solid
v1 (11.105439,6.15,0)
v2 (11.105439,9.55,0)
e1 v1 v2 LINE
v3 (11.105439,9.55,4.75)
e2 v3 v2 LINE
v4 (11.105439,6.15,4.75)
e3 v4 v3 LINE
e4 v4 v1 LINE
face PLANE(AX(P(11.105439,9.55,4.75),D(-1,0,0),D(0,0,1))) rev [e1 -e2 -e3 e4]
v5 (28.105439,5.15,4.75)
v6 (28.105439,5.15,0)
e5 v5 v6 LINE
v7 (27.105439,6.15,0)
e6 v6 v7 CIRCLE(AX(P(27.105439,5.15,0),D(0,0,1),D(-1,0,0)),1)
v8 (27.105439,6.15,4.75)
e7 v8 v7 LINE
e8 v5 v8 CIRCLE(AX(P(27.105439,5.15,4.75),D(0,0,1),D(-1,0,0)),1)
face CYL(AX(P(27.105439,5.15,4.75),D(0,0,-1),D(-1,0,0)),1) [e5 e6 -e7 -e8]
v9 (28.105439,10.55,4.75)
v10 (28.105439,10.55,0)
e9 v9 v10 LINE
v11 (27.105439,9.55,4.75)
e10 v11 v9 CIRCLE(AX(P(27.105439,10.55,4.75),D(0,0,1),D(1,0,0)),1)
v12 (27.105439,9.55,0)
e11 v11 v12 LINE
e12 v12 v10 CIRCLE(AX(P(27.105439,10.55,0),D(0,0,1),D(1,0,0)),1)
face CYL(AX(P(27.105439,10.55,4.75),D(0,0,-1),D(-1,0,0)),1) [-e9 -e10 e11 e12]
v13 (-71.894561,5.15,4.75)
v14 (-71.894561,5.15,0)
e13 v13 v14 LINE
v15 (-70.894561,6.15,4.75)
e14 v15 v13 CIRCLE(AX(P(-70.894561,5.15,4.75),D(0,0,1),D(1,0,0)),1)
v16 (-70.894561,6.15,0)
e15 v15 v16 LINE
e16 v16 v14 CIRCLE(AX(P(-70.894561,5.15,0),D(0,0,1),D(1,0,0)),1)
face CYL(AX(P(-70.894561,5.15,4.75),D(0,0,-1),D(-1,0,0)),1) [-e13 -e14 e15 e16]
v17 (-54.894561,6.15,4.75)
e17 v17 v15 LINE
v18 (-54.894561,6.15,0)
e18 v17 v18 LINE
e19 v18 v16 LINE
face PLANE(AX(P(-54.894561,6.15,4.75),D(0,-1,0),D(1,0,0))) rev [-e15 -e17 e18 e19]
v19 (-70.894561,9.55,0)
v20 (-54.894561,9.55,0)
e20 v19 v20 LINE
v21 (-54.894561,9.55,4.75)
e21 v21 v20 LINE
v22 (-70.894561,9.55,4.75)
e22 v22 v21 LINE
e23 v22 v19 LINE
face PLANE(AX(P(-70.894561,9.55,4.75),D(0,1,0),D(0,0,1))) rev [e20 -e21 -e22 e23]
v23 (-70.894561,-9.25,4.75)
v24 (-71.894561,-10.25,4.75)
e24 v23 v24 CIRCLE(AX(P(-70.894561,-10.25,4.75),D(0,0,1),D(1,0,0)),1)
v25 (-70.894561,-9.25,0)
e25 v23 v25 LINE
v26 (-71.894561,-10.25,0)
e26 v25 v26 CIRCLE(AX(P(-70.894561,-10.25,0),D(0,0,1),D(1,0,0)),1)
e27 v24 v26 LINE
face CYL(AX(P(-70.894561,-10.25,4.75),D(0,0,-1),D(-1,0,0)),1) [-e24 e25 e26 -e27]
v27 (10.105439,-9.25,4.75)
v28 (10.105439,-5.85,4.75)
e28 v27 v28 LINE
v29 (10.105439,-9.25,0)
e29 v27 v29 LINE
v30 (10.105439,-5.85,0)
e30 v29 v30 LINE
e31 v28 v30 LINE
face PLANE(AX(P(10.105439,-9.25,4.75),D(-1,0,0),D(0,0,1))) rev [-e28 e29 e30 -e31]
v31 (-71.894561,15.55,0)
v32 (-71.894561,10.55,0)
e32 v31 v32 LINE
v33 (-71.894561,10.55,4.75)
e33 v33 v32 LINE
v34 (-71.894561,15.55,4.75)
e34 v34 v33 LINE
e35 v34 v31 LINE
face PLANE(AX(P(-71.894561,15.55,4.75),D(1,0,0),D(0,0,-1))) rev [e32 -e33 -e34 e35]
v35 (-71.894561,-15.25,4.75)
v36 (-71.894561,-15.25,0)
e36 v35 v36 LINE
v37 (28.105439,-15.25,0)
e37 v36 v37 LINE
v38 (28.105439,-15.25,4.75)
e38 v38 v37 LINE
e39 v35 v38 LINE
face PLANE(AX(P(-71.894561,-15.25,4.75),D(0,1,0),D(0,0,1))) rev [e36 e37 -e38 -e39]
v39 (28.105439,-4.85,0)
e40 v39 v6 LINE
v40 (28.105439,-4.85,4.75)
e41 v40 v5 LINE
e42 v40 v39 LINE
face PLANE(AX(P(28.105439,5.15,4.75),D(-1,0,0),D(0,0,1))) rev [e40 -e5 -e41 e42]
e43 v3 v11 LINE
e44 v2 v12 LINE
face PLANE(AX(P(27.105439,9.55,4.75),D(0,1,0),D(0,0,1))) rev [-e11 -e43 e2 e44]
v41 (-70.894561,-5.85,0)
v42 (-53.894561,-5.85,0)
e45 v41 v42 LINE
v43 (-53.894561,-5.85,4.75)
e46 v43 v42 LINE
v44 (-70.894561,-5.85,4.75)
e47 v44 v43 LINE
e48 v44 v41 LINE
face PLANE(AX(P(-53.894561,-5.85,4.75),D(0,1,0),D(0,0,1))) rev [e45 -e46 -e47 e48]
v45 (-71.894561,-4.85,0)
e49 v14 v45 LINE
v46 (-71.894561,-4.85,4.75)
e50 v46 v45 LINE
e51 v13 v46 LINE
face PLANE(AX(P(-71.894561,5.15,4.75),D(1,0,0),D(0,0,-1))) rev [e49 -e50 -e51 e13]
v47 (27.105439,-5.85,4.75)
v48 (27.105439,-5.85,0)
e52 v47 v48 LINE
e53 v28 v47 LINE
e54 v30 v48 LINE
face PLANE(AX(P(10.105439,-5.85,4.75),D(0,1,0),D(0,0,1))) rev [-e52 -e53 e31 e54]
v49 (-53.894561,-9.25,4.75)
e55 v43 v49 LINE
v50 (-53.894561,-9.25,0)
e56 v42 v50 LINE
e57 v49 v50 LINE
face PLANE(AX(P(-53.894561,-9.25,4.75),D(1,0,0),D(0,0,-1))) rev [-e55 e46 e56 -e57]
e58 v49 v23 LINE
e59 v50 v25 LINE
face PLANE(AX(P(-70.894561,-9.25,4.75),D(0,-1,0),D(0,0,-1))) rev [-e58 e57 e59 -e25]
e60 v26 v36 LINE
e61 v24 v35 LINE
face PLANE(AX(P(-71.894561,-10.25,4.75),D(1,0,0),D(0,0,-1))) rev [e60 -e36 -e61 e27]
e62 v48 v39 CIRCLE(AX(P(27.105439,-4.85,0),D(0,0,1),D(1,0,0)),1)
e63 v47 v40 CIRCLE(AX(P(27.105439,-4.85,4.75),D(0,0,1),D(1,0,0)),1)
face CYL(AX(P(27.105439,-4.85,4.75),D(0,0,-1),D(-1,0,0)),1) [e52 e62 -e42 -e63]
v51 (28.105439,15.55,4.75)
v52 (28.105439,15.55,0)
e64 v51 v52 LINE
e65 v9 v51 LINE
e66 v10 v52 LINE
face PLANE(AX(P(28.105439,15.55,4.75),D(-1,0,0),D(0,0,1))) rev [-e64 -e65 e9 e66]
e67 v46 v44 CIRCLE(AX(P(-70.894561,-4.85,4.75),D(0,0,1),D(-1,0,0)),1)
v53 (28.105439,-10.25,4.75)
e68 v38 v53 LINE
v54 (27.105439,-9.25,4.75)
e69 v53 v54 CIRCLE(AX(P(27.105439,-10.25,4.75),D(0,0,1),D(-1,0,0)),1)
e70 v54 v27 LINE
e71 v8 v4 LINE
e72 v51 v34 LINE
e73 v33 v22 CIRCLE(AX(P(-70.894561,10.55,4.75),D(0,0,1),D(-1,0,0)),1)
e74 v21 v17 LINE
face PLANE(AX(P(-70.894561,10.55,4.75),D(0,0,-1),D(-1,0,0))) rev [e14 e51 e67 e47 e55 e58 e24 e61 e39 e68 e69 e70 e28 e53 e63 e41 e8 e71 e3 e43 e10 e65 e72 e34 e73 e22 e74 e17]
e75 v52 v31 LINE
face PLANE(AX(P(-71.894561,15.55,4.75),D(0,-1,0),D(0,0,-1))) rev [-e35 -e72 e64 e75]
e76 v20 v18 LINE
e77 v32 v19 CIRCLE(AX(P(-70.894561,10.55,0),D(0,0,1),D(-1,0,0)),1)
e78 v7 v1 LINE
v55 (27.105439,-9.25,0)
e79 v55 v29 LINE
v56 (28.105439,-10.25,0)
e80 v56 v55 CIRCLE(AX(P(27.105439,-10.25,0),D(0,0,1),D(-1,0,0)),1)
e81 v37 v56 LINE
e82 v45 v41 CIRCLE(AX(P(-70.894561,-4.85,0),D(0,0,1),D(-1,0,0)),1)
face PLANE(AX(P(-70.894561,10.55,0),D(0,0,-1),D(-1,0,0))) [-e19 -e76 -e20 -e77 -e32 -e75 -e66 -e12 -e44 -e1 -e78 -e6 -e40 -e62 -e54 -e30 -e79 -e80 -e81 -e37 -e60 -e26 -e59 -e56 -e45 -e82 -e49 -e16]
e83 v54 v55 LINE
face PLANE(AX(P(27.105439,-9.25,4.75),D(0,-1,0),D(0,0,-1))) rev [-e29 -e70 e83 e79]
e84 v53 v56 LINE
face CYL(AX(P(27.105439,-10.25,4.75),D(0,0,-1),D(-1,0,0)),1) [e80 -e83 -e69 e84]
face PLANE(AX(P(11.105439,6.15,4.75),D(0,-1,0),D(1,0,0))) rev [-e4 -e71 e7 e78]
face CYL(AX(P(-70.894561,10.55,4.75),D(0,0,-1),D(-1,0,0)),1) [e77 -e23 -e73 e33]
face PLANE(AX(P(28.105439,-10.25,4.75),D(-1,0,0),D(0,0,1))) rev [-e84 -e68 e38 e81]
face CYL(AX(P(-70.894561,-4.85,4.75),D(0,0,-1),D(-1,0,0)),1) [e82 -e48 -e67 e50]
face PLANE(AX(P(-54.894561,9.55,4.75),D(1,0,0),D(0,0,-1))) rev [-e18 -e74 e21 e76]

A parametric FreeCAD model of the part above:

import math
import FreeCAD as App
import Part
import Sketcher
from FreeCAD import Vector

doc = App.newDocument("Part")
body = doc.addObject("PartDesign::Body", "Body")

sketch1 = doc.addObject("Sketcher::SketchObject", "Sketch")
body.addObject(sketch1)
sketch1.AttachmentSupport = (doc.XY_Plane, [""])
sketch1.MapMode = "FlatFace"
sketch1.addGeometry([
    Part.LineSegment(Vector(28.1, -15.2, 0), Vector(28.1, -10.2, 0)),
    Part.ArcOfCircle(Part.Circle(Vector(27.1, -10.3, 0), Vector(0, 0, 1), 1), math.radians(0), math.radians(90)),
    Part.LineSegment(Vector(27.1, -9.2, 0), Vector(10.1, -9.2, 0)),
    Part.LineSegment(Vector(10.1, -9.2, 0), Vector(10.1, -5.8, 0)),
    Part.LineSegment(Vector(10.1, -5.8, 0), Vector(27.1, -5.8, 0)),
    Part.ArcOfCircle(Part.Circle(Vector(27.1, -4.8, 0), Vector(0, 0, 1), 1), math.radians(-90), math.radians(0)),
    Part.LineSegment(Vector(28.1, -4.8, 0), Vector(28.1, 5.2, 0)),
    Part.ArcOfCircle(Part.Circle(Vector(27.1, 5.1, 0), Vector(0, 0, 1), 1), math.radians(0), math.radians(90)),
    Part.LineSegment(Vector(27.1, 6.2, 0), Vector(11.1, 6.2, 0)),
    Part.LineSegment(Vector(11.1, 6.2, 0), Vector(11.1, 9.6, 0)),
    Part.LineSegment(Vector(11.1, 9.6, 0), Vector(27.1, 9.6, 0)),
    Part.ArcOfCircle(Part.Circle(Vector(27.1, 10.6, 0), Vector(0, 0, 1), 1), math.radians(-90), math.radians(0)),
    Part.LineSegment(Vector(28.1, 10.6, 0), Vector(28.1, 15.6, 0)),
    Part.LineSegment(Vector(28.1, 15.6, 0), Vector(-71.9, 15.6, 0)),
    Part.LineSegment(Vector(-71.9, 15.6, 0), Vector(-71.9, 10.6, 0)),
    Part.ArcOfCircle(Part.Circle(Vector(-70.9, 10.6, 0), Vector(0, 0, 1), 1), math.radians(-180), math.radians(-90)),
    Part.LineSegment(Vector(-70.9, 9.6, 0), Vector(-54.9, 9.6, 0)),
    Part.LineSegment(Vector(-54.9, 9.6, 0), Vector(-54.9, 6.2, 0)),
    Part.LineSegment(Vector(-54.9, 6.2, 0), Vector(-70.9, 6.2, 0)),
    Part.ArcOfCircle(Part.Circle(Vector(-70.9, 5.1, 0), Vector(0, 0, 1), 1), math.radians(90), math.radians(180)),
    Part.LineSegment(Vector(-71.9, 5.2, 0), Vector(-71.9, -4.8, 0)),
    Part.ArcOfCircle(Part.Circle(Vector(-70.9, -4.8, 0), Vector(0, 0, 1), 1), math.radians(-180), math.radians(-90)),
    Part.LineSegment(Vector(-70.9, -5.8, 0), Vector(-53.9, -5.8, 0)),
    Part.LineSegment(Vector(-53.9, -5.8, 0), Vector(-53.9, -9.2, 0)),
    Part.LineSegment(Vector(-53.9, -9.2, 0), Vector(-70.9, -9.2, 0)),
    Part.ArcOfCircle(Part.Circle(Vector(-70.9, -10.3, 0), Vector(0, 0, 1), 1), math.radians(90), math.radians(180)),
    Part.LineSegment(Vector(-71.9, -10.2, 0), Vector(-71.9, -15.2, 0)),
    Part.LineSegment(Vector(-71.9, -15.2, 0), Vector(28.1, -15.2, 0)),
], False)
sketch1.addConstraint([
    Sketcher.Constraint("Tangent", 0, 2, 1, 1),
    Sketcher.Constraint("Tangent", 1, 2, 2, 1),
    Sketcher.Constraint("Coincident", 2, 2, 3, 1),
    Sketcher.Constraint("Coincident", 3, 2, 4, 1),
    Sketcher.Constraint("Tangent", 4, 2, 5, 1),
    Sketcher.Constraint("Tangent", 5, 2, 6, 1),
    Sketcher.Constraint("Tangent", 6, 2, 7, 1),
    Sketcher.Constraint("Tangent", 7, 2, 8, 1),
    Sketcher.Constraint("Coincident", 8, 2, 9, 1),
    Sketcher.Constraint("Coincident", 9, 2, 10, 1),
    Sketcher.Constraint("Tangent", 10, 2, 11, 1),
    Sketcher.Constraint("Tangent", 11, 2, 12, 1),
    Sketcher.Constraint("Coincident", 12, 2, 13, 1),
    Sketcher.Constraint("Coincident", 13, 2, 14, 1),
    Sketcher.Constraint("Tangent", 14, 2, 15, 1),
    Sketcher.Constraint("Tangent", 15, 2, 16, 1),
    Sketcher.Constraint("Coincident", 16, 2, 17, 1),
    Sketcher.Constraint("Coincident", 17, 2, 18, 1),
    Sketcher.Constraint("Tangent", 18, 2, 19, 1),
    Sketcher.Constraint("Tangent", 19, 2, 20, 1),
    Sketcher.Constraint("Tangent", 20, 2, 21, 1),
    Sketcher.Constraint("Tangent", 21, 2, 22, 1),
    Sketcher.Constraint("Coincident", 22, 2, 23, 1),
    Sketcher.Constraint("Coincident", 23, 2, 24, 1),
    Sketcher.Constraint("Tangent", 24, 2, 25, 1),
    Sketcher.Constraint("Tangent", 25, 2, 26, 1),
    Sketcher.Constraint("Coincident", 26, 2, 27, 1),
    Sketcher.Constraint("Coincident", 27, 2, 0, 1),
    Sketcher.Constraint("Vertical", 0),
    Sketcher.Constraint("Horizontal", 2),
    Sketcher.Constraint("Vertical", 3),
    Sketcher.Constraint("Horizontal", 4),
    Sketcher.Constraint("Vertical", 6),
    Sketcher.Constraint("Horizontal", 8),
    Sketcher.Constraint("Vertical", 9),
    Sketcher.Constraint("Horizontal", 10),
    Sketcher.Constraint("Vertical", 12),
    Sketcher.Constraint("Horizontal", 13),
    Sketcher.Constraint("Vertical", 14),
    Sketcher.Constraint("Horizontal", 16),
    Sketcher.Constraint("Vertical", 17),
    Sketcher.Constraint("Horizontal", 18),
    Sketcher.Constraint("Vertical", 20),
    Sketcher.Constraint("Horizontal", 22),
    Sketcher.Constraint("Vertical", 23),
    Sketcher.Constraint("Horizontal", 24),
    Sketcher.Constraint("Vertical", 26),
    Sketcher.Constraint("Horizontal", 27),
    Sketcher.Constraint("Equal", 1, 5),
    Sketcher.Constraint("Equal", 5, 7),
    Sketcher.Constraint("Equal", 7, 11),
    Sketcher.Constraint("Equal", 11, 15),
    Sketcher.Constraint("Equal", 15, 19),
    Sketcher.Constraint("Equal", 19, 21),
    Sketcher.Constraint("Equal", 21, 25),
    Sketcher.Constraint("Horizontal", 11, 3, 15, 3),
    Sketcher.Constraint("Horizontal", 7, 3, 19, 3),
    Sketcher.Constraint("Horizontal", 5, 3, 21, 3),
    Sketcher.Constraint("Horizontal", 1, 3, 25, 3),
    Sketcher.Constraint("Vertical", 1, 3, 5, 3),
    Sketcher.Constraint("Vertical", 7, 3, 11, 3),
    Sketcher.Constraint("Vertical", 15, 3, 19, 3),
    Sketcher.Constraint("Vertical", 21, 3, 25, 3),
    Sketcher.Constraint("Equal", 10, 16),
    Sketcher.Constraint("Equal", 4, 22),
    Sketcher.Constraint("Equal", 3, 9),
    Sketcher.Constraint("Equal", 0, 12),
    Sketcher.Constraint("Radius", 1, 1.0),
    Sketcher.Constraint("DistanceX", 2, 2, 2, 1, 17.0),
    Sketcher.Constraint("DistanceX", 8, 2, 8, 1, 16.0),
    Sketcher.Constraint("DistanceX", 13, 2, 13, 1, 100.0),
    Sketcher.Constraint("DistanceY", 0, 1, 0, 2, 5.0),
    Sketcher.Constraint("DistanceY", 6, 1, 6, 2, 10.0),
    Sketcher.Constraint("DistanceY", 3, 1, 3, 2, 3.4),
    Sketcher.Constraint("DistanceY", 1, 3, -1, 1, 10.25),
    Sketcher.Constraint("DistanceX", -1, 1, 1, 3, 27.105439),
])
pad1 = doc.addObject("PartDesign::Pad", "Pad")
body.addObject(pad1)
pad1.Profile = sketch1
pad1.Length = 4.75

doc.recompute()
